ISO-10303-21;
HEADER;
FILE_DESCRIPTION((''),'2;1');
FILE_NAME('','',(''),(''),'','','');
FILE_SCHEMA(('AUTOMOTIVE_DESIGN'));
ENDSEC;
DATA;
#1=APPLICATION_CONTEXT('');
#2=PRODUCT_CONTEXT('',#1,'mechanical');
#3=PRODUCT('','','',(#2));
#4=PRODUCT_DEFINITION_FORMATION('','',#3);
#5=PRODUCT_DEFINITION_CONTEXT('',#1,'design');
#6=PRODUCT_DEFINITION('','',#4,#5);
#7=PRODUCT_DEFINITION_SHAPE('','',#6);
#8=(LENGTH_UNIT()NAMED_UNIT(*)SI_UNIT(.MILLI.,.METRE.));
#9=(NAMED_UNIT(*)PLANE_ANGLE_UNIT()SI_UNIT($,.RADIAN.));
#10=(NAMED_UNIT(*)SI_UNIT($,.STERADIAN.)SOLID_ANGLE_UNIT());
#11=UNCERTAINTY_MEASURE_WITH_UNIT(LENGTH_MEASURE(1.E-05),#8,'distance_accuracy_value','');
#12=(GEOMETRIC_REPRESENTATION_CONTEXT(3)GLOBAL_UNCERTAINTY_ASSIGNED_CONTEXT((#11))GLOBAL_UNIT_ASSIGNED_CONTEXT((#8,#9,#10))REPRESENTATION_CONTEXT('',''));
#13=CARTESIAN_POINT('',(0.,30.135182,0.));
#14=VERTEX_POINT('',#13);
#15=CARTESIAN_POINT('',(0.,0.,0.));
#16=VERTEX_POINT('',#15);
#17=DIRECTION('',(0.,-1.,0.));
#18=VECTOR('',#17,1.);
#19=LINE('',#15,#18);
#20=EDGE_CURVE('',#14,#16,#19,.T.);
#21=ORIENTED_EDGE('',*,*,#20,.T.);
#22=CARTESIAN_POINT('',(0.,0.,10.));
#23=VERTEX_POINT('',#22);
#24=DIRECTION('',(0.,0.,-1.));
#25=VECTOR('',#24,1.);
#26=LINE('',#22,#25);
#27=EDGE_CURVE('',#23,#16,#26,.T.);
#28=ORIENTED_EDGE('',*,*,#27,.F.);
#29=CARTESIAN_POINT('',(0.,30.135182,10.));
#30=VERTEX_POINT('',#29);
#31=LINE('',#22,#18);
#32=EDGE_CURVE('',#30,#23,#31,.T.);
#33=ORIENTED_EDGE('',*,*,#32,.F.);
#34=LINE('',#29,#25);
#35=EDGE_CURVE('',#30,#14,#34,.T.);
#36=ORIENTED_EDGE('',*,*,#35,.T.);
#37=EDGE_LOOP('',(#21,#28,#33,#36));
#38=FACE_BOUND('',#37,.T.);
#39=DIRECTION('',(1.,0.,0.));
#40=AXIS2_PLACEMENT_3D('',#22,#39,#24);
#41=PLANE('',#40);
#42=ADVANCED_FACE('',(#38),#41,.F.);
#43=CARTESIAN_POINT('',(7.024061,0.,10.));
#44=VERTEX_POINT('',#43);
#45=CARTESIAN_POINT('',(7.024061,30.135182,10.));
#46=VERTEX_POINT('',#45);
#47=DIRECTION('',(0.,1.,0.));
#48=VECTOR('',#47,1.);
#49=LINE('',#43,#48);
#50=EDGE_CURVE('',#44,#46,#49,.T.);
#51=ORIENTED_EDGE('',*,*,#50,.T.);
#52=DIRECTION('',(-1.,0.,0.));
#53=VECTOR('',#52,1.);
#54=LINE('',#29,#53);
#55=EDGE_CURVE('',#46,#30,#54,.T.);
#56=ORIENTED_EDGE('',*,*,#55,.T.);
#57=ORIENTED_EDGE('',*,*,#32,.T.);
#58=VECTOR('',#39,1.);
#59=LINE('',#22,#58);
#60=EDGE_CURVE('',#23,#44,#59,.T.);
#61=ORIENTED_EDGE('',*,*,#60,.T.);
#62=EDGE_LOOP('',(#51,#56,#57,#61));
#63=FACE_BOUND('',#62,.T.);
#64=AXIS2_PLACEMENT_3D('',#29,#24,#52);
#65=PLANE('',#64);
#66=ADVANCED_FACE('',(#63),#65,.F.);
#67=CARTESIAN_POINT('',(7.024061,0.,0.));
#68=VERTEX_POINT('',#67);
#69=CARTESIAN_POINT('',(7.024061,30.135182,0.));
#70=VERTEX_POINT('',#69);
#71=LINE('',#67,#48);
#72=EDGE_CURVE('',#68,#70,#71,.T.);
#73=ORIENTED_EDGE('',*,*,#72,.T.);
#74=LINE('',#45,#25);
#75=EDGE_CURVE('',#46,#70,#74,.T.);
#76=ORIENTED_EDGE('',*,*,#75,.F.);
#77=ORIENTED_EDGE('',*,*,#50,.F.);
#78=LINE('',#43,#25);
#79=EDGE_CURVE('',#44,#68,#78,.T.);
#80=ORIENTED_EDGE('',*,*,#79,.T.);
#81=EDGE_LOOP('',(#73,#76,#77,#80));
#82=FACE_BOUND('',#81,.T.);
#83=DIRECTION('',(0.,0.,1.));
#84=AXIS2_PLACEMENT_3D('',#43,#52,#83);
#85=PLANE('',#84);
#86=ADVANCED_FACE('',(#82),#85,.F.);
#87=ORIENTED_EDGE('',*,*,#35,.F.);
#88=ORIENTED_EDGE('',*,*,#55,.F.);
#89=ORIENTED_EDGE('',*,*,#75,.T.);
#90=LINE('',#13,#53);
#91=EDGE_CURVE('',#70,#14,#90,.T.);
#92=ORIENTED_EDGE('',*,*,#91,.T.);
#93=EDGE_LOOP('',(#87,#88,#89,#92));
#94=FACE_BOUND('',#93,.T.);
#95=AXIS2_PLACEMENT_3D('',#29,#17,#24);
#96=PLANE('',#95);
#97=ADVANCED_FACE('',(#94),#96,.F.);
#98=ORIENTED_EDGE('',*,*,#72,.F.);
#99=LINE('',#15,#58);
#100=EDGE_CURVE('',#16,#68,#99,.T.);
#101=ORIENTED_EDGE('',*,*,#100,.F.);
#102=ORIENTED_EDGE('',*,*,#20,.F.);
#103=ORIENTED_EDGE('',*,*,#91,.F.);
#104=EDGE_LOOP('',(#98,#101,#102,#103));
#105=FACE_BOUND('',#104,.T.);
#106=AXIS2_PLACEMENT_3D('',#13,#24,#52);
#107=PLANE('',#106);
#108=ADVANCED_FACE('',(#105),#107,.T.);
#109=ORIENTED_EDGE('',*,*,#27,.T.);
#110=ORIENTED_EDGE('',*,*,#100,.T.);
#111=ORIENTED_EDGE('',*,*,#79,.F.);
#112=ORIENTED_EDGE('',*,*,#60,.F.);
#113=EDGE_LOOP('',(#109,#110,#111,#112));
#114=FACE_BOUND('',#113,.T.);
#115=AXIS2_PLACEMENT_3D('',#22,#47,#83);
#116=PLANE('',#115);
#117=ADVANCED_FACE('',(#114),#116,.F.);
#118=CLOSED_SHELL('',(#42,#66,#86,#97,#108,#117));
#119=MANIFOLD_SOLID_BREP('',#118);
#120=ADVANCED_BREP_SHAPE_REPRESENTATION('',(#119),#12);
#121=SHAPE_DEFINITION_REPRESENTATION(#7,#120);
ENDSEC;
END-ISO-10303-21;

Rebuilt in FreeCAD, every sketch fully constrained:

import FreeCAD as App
import Part
import Sketcher
from FreeCAD import Vector
Q = App.Units.Quantity

doc = App.newDocument("Part")
body = doc.addObject("PartDesign::Body", "Body")

sketch1 = body.newObject("Sketcher::SketchObject", "Sketch")
sketch1.AttachmentSupport = (doc.getObject("XY_Plane"), [""])
sketch1.MapMode = "FlatFace"
sketch1.addGeometry(Part.LineSegment(Vector(0, 30, 0), Vector(0, 0, 0)), False)
sketch1.addGeometry(Part.LineSegment(Vector(0, 0, 0), Vector(7, 0, 0)), False)
sketch1.addGeometry(Part.LineSegment(Vector(7, 0, 0), Vector(7, 30, 0)), False)
sketch1.addGeometry(Part.LineSegment(Vector(7, 30, 0), Vector(0, 30, 0)), False)
sketch1.addConstraint(Sketcher.Constraint("Coincident", 0, 2, 1, 1))
sketch1.addConstraint(Sketcher.Constraint("Coincident", 1, 2, 2, 1))
sketch1.addConstraint(Sketcher.Constraint("Coincident", 2, 2, 3, 1))
sketch1.addConstraint(Sketcher.Constraint("Coincident", 3, 2, 0, 1))
sketch1.addConstraint(Sketcher.Constraint("Vertical", 0))
sketch1.addConstraint(Sketcher.Constraint("Horizontal", 1))
sketch1.addConstraint(Sketcher.Constraint("Vertical", 2))
sketch1.addConstraint(Sketcher.Constraint("Horizontal", 3))
sketch1.addConstraint(Sketcher.Constraint("Coincident", 0, 2, -1, 1))
sketch1.addConstraint(Sketcher.Constraint("DistanceX", 1, 1, 1, 2, Q("7.024061 mm")))
sketch1.addConstraint(Sketcher.Constraint("DistanceY", 0, 2, 0, 1, Q("30.135182 mm")))
pad1 = body.newObject("PartDesign::Pad", "Pad")
pad1.Profile = sketch1
pad1.Length = 10

doc.recompute()
